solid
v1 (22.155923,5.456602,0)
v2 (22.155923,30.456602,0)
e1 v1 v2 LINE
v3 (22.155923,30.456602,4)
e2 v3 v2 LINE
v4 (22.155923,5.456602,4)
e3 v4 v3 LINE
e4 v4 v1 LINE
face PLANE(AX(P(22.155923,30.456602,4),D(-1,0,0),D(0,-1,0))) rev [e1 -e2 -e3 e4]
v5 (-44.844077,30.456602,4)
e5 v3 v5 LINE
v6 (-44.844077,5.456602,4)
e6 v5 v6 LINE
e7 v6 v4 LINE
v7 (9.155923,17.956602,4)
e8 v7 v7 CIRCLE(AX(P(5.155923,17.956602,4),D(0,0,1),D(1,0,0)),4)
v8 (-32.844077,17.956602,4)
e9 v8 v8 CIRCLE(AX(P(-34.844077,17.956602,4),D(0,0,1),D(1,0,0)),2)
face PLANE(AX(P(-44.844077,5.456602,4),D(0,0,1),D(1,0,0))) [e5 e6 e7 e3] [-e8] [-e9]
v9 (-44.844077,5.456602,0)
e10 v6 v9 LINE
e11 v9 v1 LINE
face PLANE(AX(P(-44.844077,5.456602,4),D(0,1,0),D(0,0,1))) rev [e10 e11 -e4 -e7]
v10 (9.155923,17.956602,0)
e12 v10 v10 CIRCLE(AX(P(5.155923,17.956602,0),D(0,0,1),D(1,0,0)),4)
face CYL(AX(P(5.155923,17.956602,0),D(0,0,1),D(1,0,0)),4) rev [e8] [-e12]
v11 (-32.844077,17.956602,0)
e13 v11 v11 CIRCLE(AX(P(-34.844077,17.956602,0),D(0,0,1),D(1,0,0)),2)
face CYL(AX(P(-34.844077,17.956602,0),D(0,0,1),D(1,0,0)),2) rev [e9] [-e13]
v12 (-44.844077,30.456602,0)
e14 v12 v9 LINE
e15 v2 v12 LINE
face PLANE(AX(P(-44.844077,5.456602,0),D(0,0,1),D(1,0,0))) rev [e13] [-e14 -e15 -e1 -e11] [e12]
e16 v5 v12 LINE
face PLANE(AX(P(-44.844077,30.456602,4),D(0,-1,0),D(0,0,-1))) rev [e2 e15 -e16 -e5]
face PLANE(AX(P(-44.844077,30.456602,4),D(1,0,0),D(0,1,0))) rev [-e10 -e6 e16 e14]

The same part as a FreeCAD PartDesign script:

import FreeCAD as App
import Part
import Sketcher

V = App.Vector

doc = App.newDocument("Part")
body = doc.addObject("PartDesign::Body", "Body")

sketch1 = doc.addObject("Sketcher::SketchObject", "Sketch")
body.addObject(sketch1)
sketch1.AttachmentSupport = (doc.XY_Plane, [""])
sketch1.MapMode = "FlatFace"
sketch1.addGeometry([
    Part.LineSegment(V(-45, 30, 0), V(-45, 5, 0)),
    Part.LineSegment(V(-45, 5, 0), V(22, 5, 0)),
    Part.LineSegment(V(22, 5, 0), V(22, 30, 0)),
    Part.LineSegment(V(22, 30, 0), V(-45, 30, 0)),
], False)
sketch1.addConstraint([
    Sketcher.Constraint("Coincident", 0, 2, 1, 1),
    Sketcher.Constraint("Coincident", 1, 2, 2, 1),
    Sketcher.Constraint("Coincident", 2, 2, 3, 1),
    Sketcher.Constraint("Coincident", 3, 2, 0, 1),
    Sketcher.Constraint("Vertical", 0),
    Sketcher.Constraint("Horizontal", 1),
    Sketcher.Constraint("Vertical", 2),
    Sketcher.Constraint("Horizontal", 3),
    Sketcher.Constraint("DistanceX", 1, 1, 1, 2, 67.0),
    Sketcher.Constraint("DistanceY", 0, 2, 0, 1, 25.0),
    Sketcher.Constraint("DistanceX", 0, 2, -1, 1, 44.844077),
    Sketcher.Constraint("DistanceY", -1, 1, 0, 2, 5.456602),
])
pad1 = doc.addObject("PartDesign::Pad", "Pad")
body.addObject(pad1)
pad1.Profile = sketch1
pad1.Length = 4

sketch2 = doc.addObject("Sketcher::SketchObject", "Sketch001")
body.addObject(sketch2)
sketch2.AttachmentSupport = (doc.XY_Plane, [""])
sketch2.MapMode = "FlatFace"
sketch2.AttachmentOffset = App.Placement(V(0, 0, 4), App.Rotation())
sketch2.addGeometry([
    Part.Circle(V(-34.8, 18, 0), V(0, 0, 1), 2),
    Part.Circle(V(5.2, 18, 0), V(0, 0, 1), 4),
], False)
sketch2.addConstraint([
    Sketcher.Constraint("Horizontal", 0, 3, 1, 3),
    Sketcher.Constraint("Diameter", 0, 4.0),
    Sketcher.Constraint("Diameter", 1, 8.0),
    Sketcher.Constraint("DistanceX", 0, 3, 1, 3, 40.0),
    Sketcher.Constraint("DistanceX", 0, 3, -1, 1, 34.844077),
    Sketcher.Constraint("DistanceY", -1, 1, 0, 3, 17.956602),
])
pocket1 = doc.addObject("PartDesign::Pocket", "Pocket")
body.addObject(pocket1)
pocket1.Profile = sketch2
pocket1.Length = 4

doc.recompute()
